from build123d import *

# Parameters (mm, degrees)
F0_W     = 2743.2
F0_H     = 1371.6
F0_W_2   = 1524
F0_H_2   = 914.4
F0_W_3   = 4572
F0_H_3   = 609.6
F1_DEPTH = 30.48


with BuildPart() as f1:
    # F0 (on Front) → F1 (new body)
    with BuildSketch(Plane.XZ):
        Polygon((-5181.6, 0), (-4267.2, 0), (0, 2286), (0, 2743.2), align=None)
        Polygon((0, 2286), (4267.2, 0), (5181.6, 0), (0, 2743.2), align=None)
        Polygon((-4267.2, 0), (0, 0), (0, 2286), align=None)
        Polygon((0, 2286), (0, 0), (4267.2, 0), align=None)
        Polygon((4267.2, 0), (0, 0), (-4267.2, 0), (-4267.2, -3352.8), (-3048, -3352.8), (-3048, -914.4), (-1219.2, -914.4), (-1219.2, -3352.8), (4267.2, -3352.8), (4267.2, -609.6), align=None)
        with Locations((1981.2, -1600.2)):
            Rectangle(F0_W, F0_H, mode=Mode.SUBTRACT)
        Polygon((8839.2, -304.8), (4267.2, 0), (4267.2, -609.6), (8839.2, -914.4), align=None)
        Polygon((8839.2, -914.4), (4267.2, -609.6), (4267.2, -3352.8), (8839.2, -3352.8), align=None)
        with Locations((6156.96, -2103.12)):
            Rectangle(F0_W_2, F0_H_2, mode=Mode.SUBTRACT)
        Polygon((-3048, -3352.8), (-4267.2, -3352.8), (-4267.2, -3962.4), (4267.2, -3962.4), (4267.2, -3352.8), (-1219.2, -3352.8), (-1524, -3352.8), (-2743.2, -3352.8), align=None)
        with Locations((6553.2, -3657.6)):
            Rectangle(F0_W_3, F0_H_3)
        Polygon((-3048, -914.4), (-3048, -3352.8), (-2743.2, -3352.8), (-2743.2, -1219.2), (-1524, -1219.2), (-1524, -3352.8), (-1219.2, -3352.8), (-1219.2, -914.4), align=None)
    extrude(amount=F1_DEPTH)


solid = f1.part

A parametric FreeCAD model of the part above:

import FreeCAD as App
import Part
import Sketcher

V = App.Vector
Q = App.Units.Quantity

doc = App.newDocument("Part")
body = doc.addObject("PartDesign::Body", "Body")

# Sketch on XZ plane
sketch1 = doc.addObject("Sketcher::SketchObject", "Sketch")
body.addObject(sketch1)
sketch1.AttachmentSupport = (doc.XZ_Plane, [""])
sketch1.MapMode = "FlatFace"
sketch1.addGeometry([
    Part.LineSegment(V(-5182, 0, 0), V(-4267, 0, 0)),  # 0
    Part.LineSegment(V(-4267, 0, 0), V(-4267, -3962, 0)),  # 1
    Part.LineSegment(V(-4267, -3962, 0), V(8839, -3962, 0)),  # 2
    Part.LineSegment(V(8839, -3962, 0), V(8839, -305, 0)),  # 3
    Part.LineSegment(V(8839, -305, 0), V(4267, 0, 0)),  # 4
    Part.LineSegment(V(4267, 0, 0), V(5182, 0, 0)),  # 5
    Part.LineSegment(V(5182, 0, 0), V(0, 2743, 0)),  # 6
    Part.LineSegment(V(0, 2743, 0), V(-5182, 0, 0)),  # 7
    Part.LineSegment(V(-1524, -3353, 0), V(-2743, -3353, 0)),  # 8
    Part.LineSegment(V(-2743, -3353, 0), V(-2743, -1219, 0)),  # 9
    Part.LineSegment(V(-2743, -1219, 0), V(-1524, -1219, 0)),  # 10
    Part.LineSegment(V(-1524, -1219, 0), V(-1524, -3353, 0)),  # 11
    Part.LineSegment(V(6919, -2560, 0), V(5395, -2560, 0)),  # 12
    Part.LineSegment(V(5395, -2560, 0), V(5395, -1646, 0)),  # 13
    Part.LineSegment(V(5395, -1646, 0), V(6919, -1646, 0)),  # 14
    Part.LineSegment(V(6919, -1646, 0), V(6919, -2560, 0)),  # 15
    Part.LineSegment(V(3353, -2286, 0), V(610, -2286, 0)),  # 16
    Part.LineSegment(V(610, -2286, 0), V(610, -914, 0)),  # 17
    Part.LineSegment(V(610, -914, 0), V(3353, -914, 0)),  # 18
    Part.LineSegment(V(3353, -914, 0), V(3353, -2286, 0)),  # 19
], False)
sketch1.addConstraint([
    Sketcher.Constraint("Coincident", 0, 2, 1, 1),
    Sketcher.Constraint("Coincident", 1, 2, 2, 1),
    Sketcher.Constraint("Coincident", 2, 2, 3, 1),
    Sketcher.Constraint("Coincident", 3, 2, 4, 1),
    Sketcher.Constraint("Coincident", 4, 2, 5, 1),
    Sketcher.Constraint("Coincident", 5, 2, 6, 1),
    Sketcher.Constraint("Coincident", 6, 2, 7, 1),
    Sketcher.Constraint("Coincident", 7, 2, 0, 1),
    Sketcher.Constraint("Coincident", 8, 2, 9, 1),
    Sketcher.Constraint("Coincident", 9, 2, 10, 1),
    Sketcher.Constraint("Coincident", 10, 2, 11, 1),
    Sketcher.Constraint("Coincident", 11, 2, 8, 1),
    Sketcher.Constraint("Coincident", 12, 2, 13, 1),
    Sketcher.Constraint("Coincident", 13, 2, 14, 1),
    Sketcher.Constraint("Coincident", 14, 2, 15, 1),
    Sketcher.Constraint("Coincident", 15, 2, 12, 1),
    Sketcher.Constraint("Coincident", 16, 2, 17, 1),
    Sketcher.Constraint("Coincident", 17, 2, 18, 1),
    Sketcher.Constraint("Coincident", 18, 2, 19, 1),
    Sketcher.Constraint("Coincident", 19, 2, 16, 1),
    Sketcher.Constraint("Horizontal", 0),
    Sketcher.Constraint("Vertical", 1),
    Sketcher.Constraint("Horizontal", 2),
    Sketcher.Constraint("Vertical", 3),
    Sketcher.Constraint("Horizontal", 5),
    Sketcher.Constraint("Horizontal", 8),
    Sketcher.Constraint("Vertical", 9),
    Sketcher.Constraint("Horizontal", 10),
    Sketcher.Constraint("Vertical", 11),
    Sketcher.Constraint("Horizontal", 12),
    Sketcher.Constraint("Vertical", 13),
    Sketcher.Constraint("Horizontal", 14),
    Sketcher.Constraint("Vertical", 15),
    Sketcher.Constraint("Horizontal", 16),
    Sketcher.Constraint("Vertical", 17),
    Sketcher.Constraint("Horizontal", 18),
    Sketcher.Constraint("Vertical", 19),
    Sketcher.Constraint("Symmetric", 0, 2, 4, 2, -1, 1),
    Sketcher.Constraint("Symmetric", 5, 2, 7, 2, -2),
    Sketcher.Constraint("PointOnObject", 6, 2, -2),
    Sketcher.Constraint("Equal", 5, 13),
    Sketcher.Constraint("DistanceX", 0, 1, 0, 2, Q("36 in")),
    Sketcher.Constraint("DistanceX", 2, 1, 2, 2, Q("516 in")),
    Sketcher.Constraint("DistanceX", 8, 2, 8, 1, Q("48 in")),
    Sketcher.Constraint("DistanceX", 12, 2, 12, 1, Q("60 in")),
    Sketcher.Constraint("DistanceX", 16, 2, 16, 1, Q("108 in")),
    Sketcher.Constraint("DistanceY", 1, 2, 1, 1, Q("156 in")),
    Sketcher.Constraint("DistanceY", 3, 1, 3, 2, Q("144 in")),
    Sketcher.Constraint("DistanceY", 9, 1, 9, 2, Q("84 in")),
    Sketcher.Constraint("DistanceY", 17, 1, 17, 2, Q("54 in")),
    Sketcher.Constraint("DistanceX", 0, 2, -1, 1, Q("168 in")),
    Sketcher.Constraint("DistanceY", -1, 1, 6, 2, Q("108 in")),
    Sketcher.Constraint("DistanceX", 8, 2, -1, 1, Q("108 in")),
    Sketcher.Constraint("DistanceY", 8, 2, -1, 1, Q("132 in")),
    Sketcher.Constraint("DistanceX", -1, 1, 16, 2, Q("24 in")),
    Sketcher.Constraint("DistanceY", 16, 2, -1, 1, Q("90 in")),
    Sketcher.Constraint("DistanceX", -1, 1, 12, 2, Q("212.4 in")),
    Sketcher.Constraint("DistanceY", 12, 2, -1, 1, Q("100.8 in")),
])
pad1 = doc.addObject("PartDesign::Pad", "Pad")
body.addObject(pad1)
pad1.Profile = sketch1
pad1.Length = Q("1.2 in")

doc.recompute()
